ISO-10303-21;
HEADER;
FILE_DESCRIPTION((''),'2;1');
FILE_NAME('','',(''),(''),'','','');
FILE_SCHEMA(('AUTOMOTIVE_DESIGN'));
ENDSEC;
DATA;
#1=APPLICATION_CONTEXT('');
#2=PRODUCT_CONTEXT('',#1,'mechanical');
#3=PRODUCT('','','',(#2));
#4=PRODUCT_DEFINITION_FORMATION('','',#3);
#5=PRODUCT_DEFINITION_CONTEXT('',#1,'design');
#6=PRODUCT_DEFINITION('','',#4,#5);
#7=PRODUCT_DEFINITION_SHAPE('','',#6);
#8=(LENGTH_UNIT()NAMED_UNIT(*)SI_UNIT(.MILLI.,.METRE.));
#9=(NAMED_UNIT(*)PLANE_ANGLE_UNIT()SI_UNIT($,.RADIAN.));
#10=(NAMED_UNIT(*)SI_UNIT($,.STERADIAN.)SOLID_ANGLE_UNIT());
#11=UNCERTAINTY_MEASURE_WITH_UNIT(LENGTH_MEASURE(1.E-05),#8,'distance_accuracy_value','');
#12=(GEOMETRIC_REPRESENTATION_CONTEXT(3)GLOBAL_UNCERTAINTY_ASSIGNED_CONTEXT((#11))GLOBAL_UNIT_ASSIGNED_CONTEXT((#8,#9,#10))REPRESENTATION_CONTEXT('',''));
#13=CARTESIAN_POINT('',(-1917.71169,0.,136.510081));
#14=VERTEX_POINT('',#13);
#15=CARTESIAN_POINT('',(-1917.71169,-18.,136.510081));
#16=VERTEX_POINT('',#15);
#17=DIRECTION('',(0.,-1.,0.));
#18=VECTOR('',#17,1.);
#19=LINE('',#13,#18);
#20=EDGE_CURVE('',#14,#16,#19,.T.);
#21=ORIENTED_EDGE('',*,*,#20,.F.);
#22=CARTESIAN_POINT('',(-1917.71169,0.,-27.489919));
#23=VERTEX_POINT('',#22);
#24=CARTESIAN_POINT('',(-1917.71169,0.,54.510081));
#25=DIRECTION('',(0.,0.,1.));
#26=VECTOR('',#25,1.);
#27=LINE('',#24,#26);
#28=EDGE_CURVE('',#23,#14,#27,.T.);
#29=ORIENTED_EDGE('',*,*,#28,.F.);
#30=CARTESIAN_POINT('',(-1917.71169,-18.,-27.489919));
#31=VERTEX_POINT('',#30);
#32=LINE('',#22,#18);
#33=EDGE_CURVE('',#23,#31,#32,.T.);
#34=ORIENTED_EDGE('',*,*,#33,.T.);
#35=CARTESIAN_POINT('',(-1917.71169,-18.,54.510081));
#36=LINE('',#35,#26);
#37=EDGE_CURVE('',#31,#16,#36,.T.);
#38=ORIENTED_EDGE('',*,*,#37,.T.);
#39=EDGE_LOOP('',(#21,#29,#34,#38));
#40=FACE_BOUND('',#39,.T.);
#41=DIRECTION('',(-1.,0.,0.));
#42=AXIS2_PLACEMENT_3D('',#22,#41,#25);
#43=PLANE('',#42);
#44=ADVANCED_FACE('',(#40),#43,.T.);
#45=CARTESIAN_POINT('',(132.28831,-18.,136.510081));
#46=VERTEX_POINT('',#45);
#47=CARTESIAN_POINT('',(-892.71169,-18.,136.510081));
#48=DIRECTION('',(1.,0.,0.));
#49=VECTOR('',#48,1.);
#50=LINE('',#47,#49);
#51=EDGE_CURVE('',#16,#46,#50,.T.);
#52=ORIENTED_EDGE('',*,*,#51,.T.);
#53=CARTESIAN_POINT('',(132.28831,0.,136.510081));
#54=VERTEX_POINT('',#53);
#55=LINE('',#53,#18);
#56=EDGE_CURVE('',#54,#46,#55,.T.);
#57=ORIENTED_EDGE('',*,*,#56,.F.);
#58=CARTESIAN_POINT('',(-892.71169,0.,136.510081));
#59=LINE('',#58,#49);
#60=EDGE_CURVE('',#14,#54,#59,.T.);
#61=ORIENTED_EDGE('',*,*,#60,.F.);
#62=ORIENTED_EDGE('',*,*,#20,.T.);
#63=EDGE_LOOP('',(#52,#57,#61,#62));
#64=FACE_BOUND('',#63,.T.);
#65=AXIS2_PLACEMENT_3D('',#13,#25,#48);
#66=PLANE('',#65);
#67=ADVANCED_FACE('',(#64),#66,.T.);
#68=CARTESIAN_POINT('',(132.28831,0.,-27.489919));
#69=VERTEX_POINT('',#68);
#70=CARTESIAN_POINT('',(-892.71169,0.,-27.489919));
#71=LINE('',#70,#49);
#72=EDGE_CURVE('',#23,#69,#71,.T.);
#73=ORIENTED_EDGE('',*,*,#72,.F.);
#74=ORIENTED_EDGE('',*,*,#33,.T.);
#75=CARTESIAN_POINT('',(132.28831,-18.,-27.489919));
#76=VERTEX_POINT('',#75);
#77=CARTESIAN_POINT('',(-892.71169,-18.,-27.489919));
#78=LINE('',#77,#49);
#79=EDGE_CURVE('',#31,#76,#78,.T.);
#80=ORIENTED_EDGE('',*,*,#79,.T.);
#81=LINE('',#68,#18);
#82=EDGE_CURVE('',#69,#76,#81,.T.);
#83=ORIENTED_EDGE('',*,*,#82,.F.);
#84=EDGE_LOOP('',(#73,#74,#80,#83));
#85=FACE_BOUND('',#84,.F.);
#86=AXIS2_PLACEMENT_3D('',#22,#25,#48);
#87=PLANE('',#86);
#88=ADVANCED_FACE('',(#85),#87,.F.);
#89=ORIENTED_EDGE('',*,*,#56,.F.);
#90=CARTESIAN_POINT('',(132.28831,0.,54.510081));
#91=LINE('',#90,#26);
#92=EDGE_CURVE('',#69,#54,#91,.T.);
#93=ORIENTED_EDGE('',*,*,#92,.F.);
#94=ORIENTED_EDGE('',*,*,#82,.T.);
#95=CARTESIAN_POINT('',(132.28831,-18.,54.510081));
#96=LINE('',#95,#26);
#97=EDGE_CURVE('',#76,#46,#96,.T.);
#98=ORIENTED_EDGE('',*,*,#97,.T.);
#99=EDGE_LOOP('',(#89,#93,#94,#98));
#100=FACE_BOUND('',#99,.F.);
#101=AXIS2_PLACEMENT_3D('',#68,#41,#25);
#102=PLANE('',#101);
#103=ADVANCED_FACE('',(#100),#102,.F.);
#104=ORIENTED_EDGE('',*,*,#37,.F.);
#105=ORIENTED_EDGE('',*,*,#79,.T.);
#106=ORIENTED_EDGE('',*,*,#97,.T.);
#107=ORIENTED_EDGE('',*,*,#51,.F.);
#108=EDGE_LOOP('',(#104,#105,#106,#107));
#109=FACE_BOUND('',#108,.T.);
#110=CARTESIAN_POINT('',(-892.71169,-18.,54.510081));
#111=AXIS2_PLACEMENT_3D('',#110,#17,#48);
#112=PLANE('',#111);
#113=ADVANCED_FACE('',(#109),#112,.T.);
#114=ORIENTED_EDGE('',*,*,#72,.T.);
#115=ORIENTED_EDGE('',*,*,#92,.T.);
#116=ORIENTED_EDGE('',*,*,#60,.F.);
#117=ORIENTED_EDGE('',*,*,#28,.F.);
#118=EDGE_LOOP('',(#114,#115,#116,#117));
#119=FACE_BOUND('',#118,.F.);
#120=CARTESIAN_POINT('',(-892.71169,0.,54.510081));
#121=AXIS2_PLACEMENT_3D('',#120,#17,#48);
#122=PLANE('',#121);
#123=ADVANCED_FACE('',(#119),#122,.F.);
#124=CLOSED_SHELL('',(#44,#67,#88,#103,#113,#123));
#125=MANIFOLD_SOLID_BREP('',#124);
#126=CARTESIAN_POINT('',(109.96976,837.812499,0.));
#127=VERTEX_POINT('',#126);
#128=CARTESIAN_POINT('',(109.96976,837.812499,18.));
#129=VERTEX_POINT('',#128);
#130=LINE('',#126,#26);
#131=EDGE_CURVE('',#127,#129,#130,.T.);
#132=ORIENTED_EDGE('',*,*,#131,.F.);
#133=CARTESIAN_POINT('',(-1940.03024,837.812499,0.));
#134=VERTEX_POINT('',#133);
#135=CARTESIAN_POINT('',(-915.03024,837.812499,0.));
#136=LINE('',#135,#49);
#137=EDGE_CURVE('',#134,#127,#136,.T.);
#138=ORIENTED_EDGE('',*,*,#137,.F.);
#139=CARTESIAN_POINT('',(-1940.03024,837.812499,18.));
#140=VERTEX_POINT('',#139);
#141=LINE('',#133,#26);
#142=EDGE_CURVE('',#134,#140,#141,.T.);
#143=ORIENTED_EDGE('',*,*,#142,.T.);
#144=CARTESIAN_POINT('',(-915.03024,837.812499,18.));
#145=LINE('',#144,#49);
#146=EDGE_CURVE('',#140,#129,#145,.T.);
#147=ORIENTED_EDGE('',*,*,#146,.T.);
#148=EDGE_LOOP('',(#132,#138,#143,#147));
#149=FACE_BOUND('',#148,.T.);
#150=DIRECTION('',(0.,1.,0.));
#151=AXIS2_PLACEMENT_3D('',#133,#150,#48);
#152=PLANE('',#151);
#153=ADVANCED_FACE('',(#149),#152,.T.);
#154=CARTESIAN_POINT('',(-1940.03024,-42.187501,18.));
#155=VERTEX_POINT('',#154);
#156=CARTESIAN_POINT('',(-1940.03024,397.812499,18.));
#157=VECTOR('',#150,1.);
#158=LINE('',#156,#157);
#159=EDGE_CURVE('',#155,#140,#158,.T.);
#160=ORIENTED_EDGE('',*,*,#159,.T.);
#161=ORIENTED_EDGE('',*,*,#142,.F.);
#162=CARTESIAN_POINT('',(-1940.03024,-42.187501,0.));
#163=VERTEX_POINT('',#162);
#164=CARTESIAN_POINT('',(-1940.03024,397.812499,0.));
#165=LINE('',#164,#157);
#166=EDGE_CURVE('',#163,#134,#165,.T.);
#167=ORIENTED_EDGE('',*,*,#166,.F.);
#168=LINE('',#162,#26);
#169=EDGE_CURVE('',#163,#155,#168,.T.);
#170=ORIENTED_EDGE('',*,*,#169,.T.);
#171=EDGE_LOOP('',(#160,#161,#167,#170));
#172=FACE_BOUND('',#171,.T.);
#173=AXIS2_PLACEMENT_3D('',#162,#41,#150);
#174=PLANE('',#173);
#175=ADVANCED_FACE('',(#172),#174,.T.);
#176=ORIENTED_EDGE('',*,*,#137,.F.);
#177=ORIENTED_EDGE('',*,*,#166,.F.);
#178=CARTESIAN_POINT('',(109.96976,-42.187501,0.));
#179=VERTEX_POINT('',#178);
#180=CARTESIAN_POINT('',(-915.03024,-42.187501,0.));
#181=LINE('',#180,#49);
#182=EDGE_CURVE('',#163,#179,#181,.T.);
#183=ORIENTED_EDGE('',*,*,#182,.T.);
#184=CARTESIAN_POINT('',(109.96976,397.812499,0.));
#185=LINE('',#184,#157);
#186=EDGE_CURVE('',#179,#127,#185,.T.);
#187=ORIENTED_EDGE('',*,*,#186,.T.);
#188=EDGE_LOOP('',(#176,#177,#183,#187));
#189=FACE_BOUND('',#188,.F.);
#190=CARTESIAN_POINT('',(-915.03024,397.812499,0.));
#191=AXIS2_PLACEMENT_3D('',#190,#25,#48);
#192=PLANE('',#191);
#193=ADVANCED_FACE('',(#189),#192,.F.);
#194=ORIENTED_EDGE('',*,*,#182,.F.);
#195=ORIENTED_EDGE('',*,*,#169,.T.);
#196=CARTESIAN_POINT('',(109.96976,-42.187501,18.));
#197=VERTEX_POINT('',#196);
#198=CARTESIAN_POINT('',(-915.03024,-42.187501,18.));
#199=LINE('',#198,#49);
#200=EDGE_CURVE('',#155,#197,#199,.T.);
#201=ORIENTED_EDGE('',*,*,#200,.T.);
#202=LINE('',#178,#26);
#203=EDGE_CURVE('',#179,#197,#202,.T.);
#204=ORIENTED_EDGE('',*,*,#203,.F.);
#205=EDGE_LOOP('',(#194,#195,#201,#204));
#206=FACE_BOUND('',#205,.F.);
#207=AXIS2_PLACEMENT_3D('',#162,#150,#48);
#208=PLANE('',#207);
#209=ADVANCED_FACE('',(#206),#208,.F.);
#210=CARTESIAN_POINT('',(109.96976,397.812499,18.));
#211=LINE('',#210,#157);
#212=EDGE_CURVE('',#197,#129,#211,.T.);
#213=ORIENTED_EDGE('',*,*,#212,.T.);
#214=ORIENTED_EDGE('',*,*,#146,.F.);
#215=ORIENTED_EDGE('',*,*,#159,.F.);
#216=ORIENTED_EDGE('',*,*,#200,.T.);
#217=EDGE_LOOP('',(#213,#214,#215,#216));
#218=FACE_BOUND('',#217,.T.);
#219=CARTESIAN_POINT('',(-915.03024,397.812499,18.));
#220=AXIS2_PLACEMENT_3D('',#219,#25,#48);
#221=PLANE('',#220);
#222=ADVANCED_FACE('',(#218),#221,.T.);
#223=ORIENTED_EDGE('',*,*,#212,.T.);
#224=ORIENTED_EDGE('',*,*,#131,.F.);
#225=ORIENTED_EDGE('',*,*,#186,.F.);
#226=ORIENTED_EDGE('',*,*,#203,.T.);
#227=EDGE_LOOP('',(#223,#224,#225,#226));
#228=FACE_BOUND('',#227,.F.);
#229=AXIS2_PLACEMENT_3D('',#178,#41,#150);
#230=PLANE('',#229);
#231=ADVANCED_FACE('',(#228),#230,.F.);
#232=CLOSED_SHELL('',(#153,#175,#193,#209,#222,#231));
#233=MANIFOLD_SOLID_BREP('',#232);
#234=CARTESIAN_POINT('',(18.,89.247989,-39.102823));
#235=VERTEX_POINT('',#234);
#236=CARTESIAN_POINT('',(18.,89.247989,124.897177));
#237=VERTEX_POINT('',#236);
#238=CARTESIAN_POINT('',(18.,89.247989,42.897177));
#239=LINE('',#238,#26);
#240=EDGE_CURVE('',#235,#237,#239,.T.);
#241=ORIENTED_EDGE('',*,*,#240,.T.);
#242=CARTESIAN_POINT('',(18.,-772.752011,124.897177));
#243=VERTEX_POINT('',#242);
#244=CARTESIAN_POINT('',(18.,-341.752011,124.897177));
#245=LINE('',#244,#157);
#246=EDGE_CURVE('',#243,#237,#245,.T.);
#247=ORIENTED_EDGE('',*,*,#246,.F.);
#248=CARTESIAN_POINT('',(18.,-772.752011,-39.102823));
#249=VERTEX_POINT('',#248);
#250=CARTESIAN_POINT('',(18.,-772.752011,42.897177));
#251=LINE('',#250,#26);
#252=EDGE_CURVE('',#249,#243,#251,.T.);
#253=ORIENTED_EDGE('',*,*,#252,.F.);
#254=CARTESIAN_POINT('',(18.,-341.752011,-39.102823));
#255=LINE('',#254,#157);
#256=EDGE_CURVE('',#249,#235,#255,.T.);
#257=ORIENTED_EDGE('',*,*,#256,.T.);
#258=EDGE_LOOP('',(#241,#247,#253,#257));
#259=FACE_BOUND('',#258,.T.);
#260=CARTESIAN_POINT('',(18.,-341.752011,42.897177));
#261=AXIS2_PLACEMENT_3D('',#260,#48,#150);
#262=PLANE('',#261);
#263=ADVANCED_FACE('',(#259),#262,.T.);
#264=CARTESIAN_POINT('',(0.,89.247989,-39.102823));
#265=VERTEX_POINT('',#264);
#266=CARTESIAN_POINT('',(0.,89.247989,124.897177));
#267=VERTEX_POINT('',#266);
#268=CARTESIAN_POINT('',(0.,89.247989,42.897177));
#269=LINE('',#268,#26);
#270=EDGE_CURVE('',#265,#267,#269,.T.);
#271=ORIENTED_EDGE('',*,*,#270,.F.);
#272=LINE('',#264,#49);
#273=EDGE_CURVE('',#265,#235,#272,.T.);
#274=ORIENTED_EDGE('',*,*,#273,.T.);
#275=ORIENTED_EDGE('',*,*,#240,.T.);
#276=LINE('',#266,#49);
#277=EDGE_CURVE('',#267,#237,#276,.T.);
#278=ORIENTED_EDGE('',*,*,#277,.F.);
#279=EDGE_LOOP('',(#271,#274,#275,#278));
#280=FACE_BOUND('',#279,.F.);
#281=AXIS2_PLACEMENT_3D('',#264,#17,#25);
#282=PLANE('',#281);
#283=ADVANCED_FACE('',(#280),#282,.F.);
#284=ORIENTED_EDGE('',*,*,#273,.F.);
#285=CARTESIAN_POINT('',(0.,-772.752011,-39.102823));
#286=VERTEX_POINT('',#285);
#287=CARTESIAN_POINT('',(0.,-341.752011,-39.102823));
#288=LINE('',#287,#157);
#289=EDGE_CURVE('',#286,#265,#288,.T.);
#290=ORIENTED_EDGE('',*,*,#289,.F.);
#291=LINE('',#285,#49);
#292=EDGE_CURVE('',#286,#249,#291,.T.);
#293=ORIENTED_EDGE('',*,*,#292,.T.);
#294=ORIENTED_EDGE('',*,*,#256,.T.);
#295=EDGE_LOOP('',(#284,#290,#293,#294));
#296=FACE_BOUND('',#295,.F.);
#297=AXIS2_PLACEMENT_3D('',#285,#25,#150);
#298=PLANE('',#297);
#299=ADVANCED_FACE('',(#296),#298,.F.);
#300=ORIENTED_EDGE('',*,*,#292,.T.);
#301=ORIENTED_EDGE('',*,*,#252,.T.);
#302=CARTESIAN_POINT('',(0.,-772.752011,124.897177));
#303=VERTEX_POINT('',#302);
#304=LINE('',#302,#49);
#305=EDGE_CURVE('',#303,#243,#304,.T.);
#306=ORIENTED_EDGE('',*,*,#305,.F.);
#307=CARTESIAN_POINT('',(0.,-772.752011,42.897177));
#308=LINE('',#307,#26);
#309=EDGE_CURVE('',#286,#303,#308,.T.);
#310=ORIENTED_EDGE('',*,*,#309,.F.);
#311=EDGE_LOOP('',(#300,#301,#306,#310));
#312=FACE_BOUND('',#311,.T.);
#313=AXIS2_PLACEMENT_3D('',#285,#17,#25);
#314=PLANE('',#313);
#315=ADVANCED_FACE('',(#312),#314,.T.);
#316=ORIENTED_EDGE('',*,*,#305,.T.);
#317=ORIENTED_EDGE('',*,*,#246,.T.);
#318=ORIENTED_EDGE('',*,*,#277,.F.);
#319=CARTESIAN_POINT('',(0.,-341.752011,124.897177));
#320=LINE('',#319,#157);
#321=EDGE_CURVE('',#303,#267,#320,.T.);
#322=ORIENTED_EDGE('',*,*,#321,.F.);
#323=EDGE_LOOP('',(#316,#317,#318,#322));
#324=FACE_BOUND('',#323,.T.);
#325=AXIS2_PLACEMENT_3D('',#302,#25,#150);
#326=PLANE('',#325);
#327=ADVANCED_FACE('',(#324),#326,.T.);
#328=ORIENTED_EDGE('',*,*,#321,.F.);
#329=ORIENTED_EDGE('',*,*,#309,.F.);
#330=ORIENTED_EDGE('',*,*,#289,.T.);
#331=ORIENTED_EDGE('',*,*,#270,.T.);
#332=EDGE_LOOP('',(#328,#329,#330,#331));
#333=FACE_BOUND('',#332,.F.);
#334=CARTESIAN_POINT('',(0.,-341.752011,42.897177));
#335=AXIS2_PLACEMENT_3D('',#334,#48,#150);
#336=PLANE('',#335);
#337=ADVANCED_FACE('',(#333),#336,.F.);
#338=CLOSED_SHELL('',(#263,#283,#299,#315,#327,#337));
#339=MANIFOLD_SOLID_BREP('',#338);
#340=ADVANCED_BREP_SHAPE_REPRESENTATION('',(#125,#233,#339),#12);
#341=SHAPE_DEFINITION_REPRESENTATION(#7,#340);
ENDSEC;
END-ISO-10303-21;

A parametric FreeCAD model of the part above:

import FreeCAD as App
import Part
import Sketcher
from FreeCAD import Vector
Q = App.Units.Quantity

doc = App.newDocument("Part")
params = doc.addObject("Spreadsheet::Sheet", "Params")
for row, (alias, value) in enumerate([
    ("sketch1_width", "2050 mm"),
    ("sketch1_height", "880 mm"),
    ("pad1_length", "18 mm"),
    ("sketch2_width", "2050 mm"),
    ("sketch2_height", "164 mm"),
    ("pad2_length", "18 mm"),
    ("sketch3_width", "862 mm"),
    ("sketch3_height", "164 mm"),
    ("pad3_length", "18 mm"),
], start=1):
    params.set(f"A{row}", alias)
    params.set(f"B{row}", "=" + value)
    params.setAlias(f"B{row}", alias)

body = doc.addObject("PartDesign::Body", "Body")

sketch1 = body.newObject("Sketcher::SketchObject", "Sketch")
sketch1.AttachmentSupport = (doc.getObject("XY_Plane"), [""])
sketch1.MapMode = "FlatFace"
sketch1.addGeometry(Part.LineSegment(Vector(-1940, 838, 0), Vector(-1940, -42, 0)), False)
sketch1.addGeometry(Part.LineSegment(Vector(-1940, -42, 0), Vector(110, -42, 0)), False)
sketch1.addGeometry(Part.LineSegment(Vector(110, -42, 0), Vector(110, 838, 0)), False)
sketch1.addGeometry(Part.LineSegment(Vector(110, 838, 0), Vector(-1940, 838, 0)), False)
sketch1.addConstraint(Sketcher.Constraint("Coincident", 0, 2, 1, 1))
sketch1.addConstraint(Sketcher.Constraint("Coincident", 1, 2, 2, 1))
sketch1.addConstraint(Sketcher.Constraint("Coincident", 2, 2, 3, 1))
sketch1.addConstraint(Sketcher.Constraint("Coincident", 3, 2, 0, 1))
sketch1.addConstraint(Sketcher.Constraint("Vertical", 0))
sketch1.addConstraint(Sketcher.Constraint("Horizontal", 1))
sketch1.addConstraint(Sketcher.Constraint("Vertical", 2))
sketch1.addConstraint(Sketcher.Constraint("Horizontal", 3))
sketch1.addConstraint(Sketcher.Constraint("DistanceX", 1, 1, 1, 2, Q("2050 mm")))
sketch1.addConstraint(Sketcher.Constraint("DistanceY", 0, 2, 0, 1, Q("880 mm")))
sketch1.addConstraint(Sketcher.Constraint("DistanceY", 0, 2, -1, 1, Q("42.187501 mm")))
sketch1.addConstraint(Sketcher.Constraint("DistanceX", 0, 2, -1, 1, Q("1940.03024 mm")))
sketch1.setExpression("Constraints[8]", "Params.sketch1_width")
sketch1.setExpression("Constraints[9]", "Params.sketch1_height")
pad1 = body.newObject("PartDesign::Pad", "Pad")
pad1.Profile = sketch1
pad1.setExpression("Length", "Params.pad1_length")
body2 = doc.addObject("PartDesign::Body", "Body001")

sketch2 = body2.newObject("Sketcher::SketchObject", "Sketch001")
sketch2.AttachmentSupport = (doc.getObject("XZ_Plane001"), [""])
sketch2.MapMode = "FlatFace"
sketch2.addGeometry(Part.LineSegment(Vector(-1918, 137, 0), Vector(-1918, -27, 0)), False)
sketch2.addGeometry(Part.LineSegment(Vector(-1918, -27, 0), Vector(132, -27, 0)), False)
sketch2.addGeometry(Part.LineSegment(Vector(132, -27, 0), Vector(132, 137, 0)), False)
sketch2.addGeometry(Part.LineSegment(Vector(132, 137, 0), Vector(-1918, 137, 0)), False)
sketch2.addConstraint(Sketcher.Constraint("Coincident", 0, 2, 1, 1))
sketch2.addConstraint(Sketcher.Constraint("Coincident", 1, 2, 2, 1))
sketch2.addConstraint(Sketcher.Constraint("Coincident", 2, 2, 3, 1))
sketch2.addConstraint(Sketcher.Constraint("Coincident", 3, 2, 0, 1))
sketch2.addConstraint(Sketcher.Constraint("Vertical", 0))
sketch2.addConstraint(Sketcher.Constraint("Horizontal", 1))
sketch2.addConstraint(Sketcher.Constraint("Vertical", 2))
sketch2.addConstraint(Sketcher.Constraint("Horizontal", 3))
sketch2.addConstraint(Sketcher.Constraint("DistanceX", 1, 1, 1, 2, Q("2050 mm")))
sketch2.addConstraint(Sketcher.Constraint("DistanceY", 0, 2, 0, 1, Q("164 mm")))
sketch2.addConstraint(Sketcher.Constraint("DistanceX", 0, 2, -1, 1, Q("1917.71169 mm")))
sketch2.addConstraint(Sketcher.Constraint("DistanceY", 0, 2, -1, 1, Q("27.489919 mm")))
sketch2.setExpression("Constraints[8]", "Params.sketch2_width")
sketch2.setExpression("Constraints[9]", "Params.sketch2_height")
pad2 = body2.newObject("PartDesign::Pad", "Pad001")
pad2.Profile = sketch2
pad2.setExpression("Length", "Params.pad2_length")
body3 = doc.addObject("PartDesign::Body", "Body002")

sketch3 = body3.newObject("Sketcher::SketchObject", "Sketch002")
sketch3.AttachmentSupport = (doc.getObject("YZ_Plane002"), [""])
sketch3.MapMode = "FlatFace"
sketch3.addGeometry(Part.LineSegment(Vector(-773, 125, 0), Vector(-773, -39, 0)), False)
sketch3.addGeometry(Part.LineSegment(Vector(-773, -39, 0), Vector(89, -39, 0)), False)
sketch3.addGeometry(Part.LineSegment(Vector(89, -39, 0), Vector(89, 125, 0)), False)
sketch3.addGeometry(Part.LineSegment(Vector(89, 125, 0), Vector(-773, 125, 0)), False)
sketch3.addConstraint(Sketcher.Constraint("Coincident", 0, 2, 1, 1))
sketch3.addConstraint(Sketcher.Constraint("Coincident", 1, 2, 2, 1))
sketch3.addConstraint(Sketcher.Constraint("Coincident", 2, 2, 3, 1))
sketch3.addConstraint(Sketcher.Constraint("Coincident", 3, 2, 0, 1))
sketch3.addConstraint(Sketcher.Constraint("Vertical", 0))
sketch3.addConstraint(Sketcher.Constraint("Horizontal", 1))
sketch3.addConstraint(Sketcher.Constraint("Vertical", 2))
sketch3.addConstraint(Sketcher.Constraint("Horizontal", 3))
sketch3.addConstraint(Sketcher.Constraint("DistanceX", 1, 1, 1, 2, Q("862 mm")))
sketch3.addConstraint(Sketcher.Constraint("DistanceY", 0, 2, 0, 1, Q("164 mm")))
sketch3.addConstraint(Sketcher.Constraint("DistanceX", 0, 2, -1, 1, Q("772.752011 mm")))
sketch3.addConstraint(Sketcher.Constraint("DistanceY", 0, 2, -1, 1, Q("39.102823 mm")))
sketch3.setExpression("Constraints[8]", "Params.sketch3_width")
sketch3.setExpression("Constraints[9]", "Params.sketch3_height")
pad3 = body3.newObject("PartDesign::Pad", "Pad002")
pad3.Profile = sketch3
pad3.setExpression("Length", "Params.pad3_length")

doc.recompute()
